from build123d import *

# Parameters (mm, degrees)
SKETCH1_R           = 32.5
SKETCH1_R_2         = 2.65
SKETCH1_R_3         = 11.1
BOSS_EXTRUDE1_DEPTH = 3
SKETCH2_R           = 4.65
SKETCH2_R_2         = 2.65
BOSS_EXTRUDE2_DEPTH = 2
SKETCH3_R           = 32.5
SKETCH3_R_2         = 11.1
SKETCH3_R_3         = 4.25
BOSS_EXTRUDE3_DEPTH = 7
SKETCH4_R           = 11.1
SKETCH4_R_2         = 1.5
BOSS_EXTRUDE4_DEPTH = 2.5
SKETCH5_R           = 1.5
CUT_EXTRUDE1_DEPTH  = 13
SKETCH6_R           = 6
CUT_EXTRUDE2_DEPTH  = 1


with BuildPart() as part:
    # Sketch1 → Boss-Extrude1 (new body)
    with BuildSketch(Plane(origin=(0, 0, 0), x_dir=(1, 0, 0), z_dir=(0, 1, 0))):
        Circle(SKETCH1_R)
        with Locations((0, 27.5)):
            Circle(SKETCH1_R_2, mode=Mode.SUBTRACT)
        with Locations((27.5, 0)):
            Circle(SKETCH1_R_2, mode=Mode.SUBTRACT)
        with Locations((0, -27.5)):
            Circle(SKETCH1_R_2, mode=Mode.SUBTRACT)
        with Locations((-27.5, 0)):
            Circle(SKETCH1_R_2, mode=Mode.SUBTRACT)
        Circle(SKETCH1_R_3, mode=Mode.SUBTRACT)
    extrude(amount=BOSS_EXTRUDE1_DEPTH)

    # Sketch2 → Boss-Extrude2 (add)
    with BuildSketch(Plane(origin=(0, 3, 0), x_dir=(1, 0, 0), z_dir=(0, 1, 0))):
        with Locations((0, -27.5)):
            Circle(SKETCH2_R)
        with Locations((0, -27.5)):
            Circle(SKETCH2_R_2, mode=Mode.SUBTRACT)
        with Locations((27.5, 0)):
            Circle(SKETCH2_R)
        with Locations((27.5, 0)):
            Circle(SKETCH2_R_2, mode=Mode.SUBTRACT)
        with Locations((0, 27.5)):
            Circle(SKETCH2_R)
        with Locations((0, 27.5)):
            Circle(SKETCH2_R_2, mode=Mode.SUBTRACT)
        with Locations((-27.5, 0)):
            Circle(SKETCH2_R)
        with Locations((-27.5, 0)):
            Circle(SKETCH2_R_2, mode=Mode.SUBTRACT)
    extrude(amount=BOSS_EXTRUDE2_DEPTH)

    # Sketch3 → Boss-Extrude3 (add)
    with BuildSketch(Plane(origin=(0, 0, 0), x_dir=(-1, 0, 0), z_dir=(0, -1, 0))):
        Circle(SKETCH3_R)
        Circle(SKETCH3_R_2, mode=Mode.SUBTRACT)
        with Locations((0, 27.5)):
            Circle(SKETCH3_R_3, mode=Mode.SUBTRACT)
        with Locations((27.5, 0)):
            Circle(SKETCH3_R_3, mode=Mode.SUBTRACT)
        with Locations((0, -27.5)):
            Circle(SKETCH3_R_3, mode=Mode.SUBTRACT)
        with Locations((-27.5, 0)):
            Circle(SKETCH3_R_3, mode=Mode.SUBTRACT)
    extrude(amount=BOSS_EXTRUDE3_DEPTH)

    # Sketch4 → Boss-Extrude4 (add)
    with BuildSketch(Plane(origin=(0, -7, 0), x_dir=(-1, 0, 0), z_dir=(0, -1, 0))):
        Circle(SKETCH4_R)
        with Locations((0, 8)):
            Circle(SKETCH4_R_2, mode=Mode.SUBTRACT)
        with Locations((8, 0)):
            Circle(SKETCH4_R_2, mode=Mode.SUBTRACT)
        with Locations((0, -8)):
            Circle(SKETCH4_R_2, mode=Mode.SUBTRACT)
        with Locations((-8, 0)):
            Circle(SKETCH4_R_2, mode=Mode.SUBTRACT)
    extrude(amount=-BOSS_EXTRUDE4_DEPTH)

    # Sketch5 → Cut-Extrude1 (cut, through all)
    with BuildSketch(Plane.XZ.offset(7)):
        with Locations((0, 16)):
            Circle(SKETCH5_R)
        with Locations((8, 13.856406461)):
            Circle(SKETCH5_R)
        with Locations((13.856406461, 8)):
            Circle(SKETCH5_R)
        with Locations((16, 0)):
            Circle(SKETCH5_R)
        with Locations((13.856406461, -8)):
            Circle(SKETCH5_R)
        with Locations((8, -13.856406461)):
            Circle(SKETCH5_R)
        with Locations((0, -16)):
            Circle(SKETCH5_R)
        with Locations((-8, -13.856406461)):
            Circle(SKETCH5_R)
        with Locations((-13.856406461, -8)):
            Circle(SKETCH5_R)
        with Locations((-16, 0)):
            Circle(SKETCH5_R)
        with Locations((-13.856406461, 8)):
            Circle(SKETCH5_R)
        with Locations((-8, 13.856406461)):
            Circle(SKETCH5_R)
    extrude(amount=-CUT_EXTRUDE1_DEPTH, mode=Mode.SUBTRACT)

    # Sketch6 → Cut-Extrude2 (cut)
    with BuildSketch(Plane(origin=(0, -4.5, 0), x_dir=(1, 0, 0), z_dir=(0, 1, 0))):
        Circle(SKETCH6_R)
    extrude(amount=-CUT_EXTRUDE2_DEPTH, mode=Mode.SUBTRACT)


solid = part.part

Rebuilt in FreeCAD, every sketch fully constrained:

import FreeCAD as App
import Part
import Sketcher
from FreeCAD import Vector

doc = App.newDocument("Part")
params = doc.addObject("Spreadsheet::Sheet", "Params")
for row, (alias, value) in enumerate([
    ("sketch1_diameter", "65 mm"),
    ("sketch1_diameter2", "5.3 mm"),
    ("sketch1_diameter3", "22.2 mm"),
    ("pad1_length", "3 mm"),
    ("sketch2_diameter", "9.3 mm"),
    ("sketch2_diameter2", "5.3 mm"),
    ("pad2_length", "2 mm"),
    ("sketch3_diameter", "65 mm"),
    ("sketch3_diameter2", "8.5 mm"),
    ("sketch3_diameter3", "22.2 mm"),
    ("pad3_length", "7 mm"),
    ("sketch4_diameter", "3 mm"),
    ("sketch4_diameter2", "22.2 mm"),
    ("pad4_length", "2.5 mm"),
    ("sketch5_diameter", "3 mm"),
    ("sketch6_diameter", "12 mm"),
    ("pocket2_length", "1 mm"),
], start=1):
    params.set(f"A{row}", alias)
    params.set(f"B{row}", "=" + value)
    params.setAlias(f"B{row}", alias)

body = doc.addObject("PartDesign::Body", "Body")

# Sketch on XZ plane
sketch1 = body.newObject("Sketcher::SketchObject", "Sketch")
sketch1.AttachmentSupport = (doc.getObject("XZ_Plane"), [""])
sketch1.MapMode = "FlatFace"
sketch1.addGeometry([
    Part.Circle(Vector(0, 0, 0), Vector(0, 0, 1), 32.5),  # 0
    Part.Circle(Vector(0, 27.5, 0), Vector(0, 0, 1), 2.6),  # 1
    Part.Circle(Vector(-27.5, 0, 0), Vector(0, 0, 1), 2.6),  # 2
    Part.Circle(Vector(0, 0, 0), Vector(0, 0, 1), 11.1),  # 3
    Part.Circle(Vector(27.5, 0, 0), Vector(0, 0, 1), 2.6),  # 4
    Part.Circle(Vector(0, -27.5, 0), Vector(0, 0, 1), 2.6),  # 5
], False)
sketch1.addConstraint([
    Sketcher.Constraint("Coincident", 0, 3, -1, 1),
    Sketcher.Constraint("Coincident", 3, 3, -1, 1),
    Sketcher.Constraint("Equal", 1, 2),
    Sketcher.Constraint("Equal", 2, 4),
    Sketcher.Constraint("Equal", 4, 5),
    Sketcher.Constraint("Symmetric", 2, 3, 4, 3, -1, 1),
    Sketcher.Constraint("Symmetric", 1, 3, 5, 3, -1, 1),
    Sketcher.Constraint("PointOnObject", 1, 3, -2),
    Sketcher.Constraint("PointOnObject", 2, 3, -1),
    Sketcher.Constraint("Diameter", 0, 65.0),
    Sketcher.Constraint("Diameter", 1, 5.3),
    Sketcher.Constraint("Diameter", 3, 22.2),
    Sketcher.Constraint("DistanceX", 2, 3, 4, 3, 55.0),
    Sketcher.Constraint("DistanceY", 5, 3, 1, 3, 55.0),
])
sketch1.setExpression("Constraints[9]", "Params.sketch1_diameter")
sketch1.setExpression("Constraints[10]", "Params.sketch1_diameter2")
sketch1.setExpression("Constraints[11]", "Params.sketch1_diameter3")
pad1 = body.newObject("PartDesign::Pad", "Pad")
pad1.Profile = sketch1
pad1.setExpression("Length", "Params.pad1_length")
pad1.Reversed = True

# Sketch on XZ plane
sketch2 = body.newObject("Sketcher::SketchObject", "Sketch001")
sketch2.AttachmentSupport = (doc.getObject("XZ_Plane"), [""])
sketch2.MapMode = "FlatFace"
sketch2.AttachmentOffset = App.Placement(Vector(0, 0, -3), App.Rotation())
sketch2.addGeometry([
    Part.Circle(Vector(0, 27.5, 0), Vector(0, 0, 1), 4.7),  # 0
    Part.Circle(Vector(0, 27.5, 0), Vector(0, 0, 1), 2.6),  # 1
    Part.Circle(Vector(27.5, 0, 0), Vector(0, 0, 1), 4.7),  # 2
    Part.Circle(Vector(27.5, 0, 0), Vector(0, 0, 1), 2.6),  # 3
    Part.Circle(Vector(0, -27.5, 0), Vector(0, 0, 1), 4.7),  # 4
    Part.Circle(Vector(0, -27.5, 0), Vector(0, 0, 1), 2.6),  # 5
    Part.Circle(Vector(-27.5, 0, 0), Vector(0, 0, 1), 4.7),  # 6
    Part.Circle(Vector(-27.5, 0, 0), Vector(0, 0, 1), 2.6),  # 7
], False)
sketch2.addConstraint([
    Sketcher.Constraint("Coincident", 1, 3, 0, 3),
    Sketcher.Constraint("Coincident", 3, 3, 2, 3),
    Sketcher.Constraint("Coincident", 5, 3, 4, 3),
    Sketcher.Constraint("Coincident", 7, 3, 6, 3),
    Sketcher.Constraint("Equal", 0, 2),
    Sketcher.Constraint("Equal", 1, 3),
    Sketcher.Constraint("Equal", 2, 4),
    Sketcher.Constraint("Equal", 3, 5),
    Sketcher.Constraint("Equal", 4, 6),
    Sketcher.Constraint("Equal", 5, 7),
    Sketcher.Constraint("Symmetric", 0, 3, 4, 3, -1, 1),
    Sketcher.Constraint("Symmetric", 2, 3, 6, 3, -1, 1),
    Sketcher.Constraint("PointOnObject", 0, 3, -2),
    Sketcher.Constraint("PointOnObject", 2, 3, -1),
    Sketcher.Constraint("Diameter", 0, 9.3),
    Sketcher.Constraint("Diameter", 1, 5.3),
    Sketcher.Constraint("DistanceY", 4, 3, 0, 3, 55.0),
    Sketcher.Constraint("DistanceX", 6, 3, 2, 3, 55.0),
])
sketch2.setExpression("Constraints[14]", "Params.sketch2_diameter")
sketch2.setExpression("Constraints[15]", "Params.sketch2_diameter2")
pad2 = body.newObject("PartDesign::Pad", "Pad001")
pad2.Profile = sketch2
pad2.setExpression("Length", "Params.pad2_length")
pad2.Reversed = True

# Sketch on XZ plane
sketch3 = body.newObject("Sketcher::SketchObject", "Sketch002")
sketch3.AttachmentSupport = (doc.getObject("XZ_Plane"), [""])
sketch3.MapMode = "FlatFace"
sketch3.addGeometry([
    Part.Circle(Vector(0, 0, 0), Vector(0, 0, 1), 32.5),  # 0
    Part.Circle(Vector(0, 27.5, 0), Vector(0, 0, 1), 4.2),  # 1
    Part.Circle(Vector(27.5, 0, 0), Vector(0, 0, 1), 4.2),  # 2
    Part.Circle(Vector(0, 0, 0), Vector(0, 0, 1), 11.1),  # 3
    Part.Circle(Vector(-27.5, 0, 0), Vector(0, 0, 1), 4.2),  # 4
    Part.Circle(Vector(0, -27.5, 0), Vector(0, 0, 1), 4.2),  # 5
], False)
sketch3.addConstraint([
    Sketcher.Constraint("Coincident", 0, 3, -1, 1),
    Sketcher.Constraint("Coincident", 3, 3, -1, 1),
    Sketcher.Constraint("Equal", 1, 2),
    Sketcher.Constraint("Equal", 2, 4),
    Sketcher.Constraint("Equal", 4, 5),
    Sketcher.Constraint("Symmetric", 2, 3, 4, 3, -1, 1),
    Sketcher.Constraint("Symmetric", 1, 3, 5, 3, -1, 1),
    Sketcher.Constraint("PointOnObject", 1, 3, -2),
    Sketcher.Constraint("PointOnObject", 2, 3, -1),
    Sketcher.Constraint("Diameter", 0, 65.0),
    Sketcher.Constraint("Diameter", 1, 8.5),
    Sketcher.Constraint("Diameter", 3, 22.2),
    Sketcher.Constraint("DistanceX", 4, 3, 2, 3, 55.0),
    Sketcher.Constraint("DistanceY", 5, 3, 1, 3, 55.0),
])
sketch3.setExpression("Constraints[9]", "Params.sketch3_diameter")
sketch3.setExpression("Constraints[10]", "Params.sketch3_diameter2")
sketch3.setExpression("Constraints[11]", "Params.sketch3_diameter3")
pad3 = body.newObject("PartDesign::Pad", "Pad002")
pad3.Profile = sketch3
pad3.setExpression("Length", "Params.pad3_length")

# Sketch on XZ plane
sketch4 = body.newObject("Sketcher::SketchObject", "Sketch003")
sketch4.AttachmentSupport = (doc.getObject("XZ_Plane"), [""])
sketch4.MapMode = "FlatFace"
sketch4.AttachmentOffset = App.Placement(Vector(0, 0, 7), App.Rotation())
sketch4.addGeometry([
    Part.Circle(Vector(0, 0, 0), Vector(0, 0, 1), 11.1),  # 0
    Part.Circle(Vector(0, 8, 0), Vector(0, 0, 1), 1.5),  # 1
    Part.Circle(Vector(8, 0, 0), Vector(0, 0, 1), 1.5),  # 2
    Part.Circle(Vector(-8, 0, 0), Vector(0, 0, 1), 1.5),  # 3
    Part.Circle(Vector(0, -8, 0), Vector(0, 0, 1), 1.5),  # 4
], False)
sketch4.addConstraint([
    Sketcher.Constraint("Coincident", 0, 3, -1, 1),
    Sketcher.Constraint("Equal", 1, 2),
    Sketcher.Constraint("Equal", 2, 3),
    Sketcher.Constraint("Equal", 3, 4),
    Sketcher.Constraint("Symmetric", 2, 3, 3, 3, -1, 1),
    Sketcher.Constraint("Symmetric", 1, 3, 4, 3, -1, 1),
    Sketcher.Constraint("PointOnObject", 1, 3, -2),
    Sketcher.Constraint("PointOnObject", 2, 3, -1),
    Sketcher.Constraint("Diameter", 1, 3.0),
    Sketcher.Constraint("Diameter", 0, 22.2),
    Sketcher.Constraint("DistanceY", -1, 1, 1, 3, 8.0),
    Sketcher.Constraint("DistanceX", -1, 1, 2, 3, 8.0),
])
sketch4.setExpression("Constraints[8]", "Params.sketch4_diameter")
sketch4.setExpression("Constraints[9]", "Params.sketch4_diameter2")
pad4 = body.newObject("PartDesign::Pad", "Pad003")
pad4.Profile = sketch4
pad4.setExpression("Length", "Params.pad4_length")
pad4.Reversed = True

# Sketch on XZ plane
sketch5 = body.newObject("Sketcher::SketchObject", "Sketch004")
sketch5.AttachmentSupport = (doc.getObject("XZ_Plane"), [""])
sketch5.MapMode = "FlatFace"
sketch5.AttachmentOffset = App.Placement(Vector(0, 0, 7), App.Rotation())
sketch5.addGeometry([
    Part.Circle(Vector(0, 16, 0), Vector(0, 0, 1), 1.5),  # 0
    Part.Circle(Vector(8, 13.9, 0), Vector(0, 0, 1), 1.5),  # 1
    Part.Circle(Vector(13.9, 8, 0), Vector(0, 0, 1), 1.5),  # 2
    Part.Circle(Vector(16, 0, 0), Vector(0, 0, 1), 1.5),  # 3
    Part.Circle(Vector(13.9, -8, 0), Vector(0, 0, 1), 1.5),  # 4
    Part.Circle(Vector(8, -13.9, 0), Vector(0, 0, 1), 1.5),  # 5
    Part.Circle(Vector(0, -16, 0), Vector(0, 0, 1), 1.5),  # 6
    Part.Circle(Vector(-8, -13.9, 0), Vector(0, 0, 1), 1.5),  # 7
    Part.Circle(Vector(-13.9, -8, 0), Vector(0, 0, 1), 1.5),  # 8
    Part.Circle(Vector(-16, 0, 0), Vector(0, 0, 1), 1.5),  # 9
    Part.Circle(Vector(-13.9, 8, 0), Vector(0, 0, 1), 1.5),  # 10
    Part.Circle(Vector(-8, 13.9, 0), Vector(0, 0, 1), 1.5),  # 11
], False)
sketch5.addConstraint([
    Sketcher.Constraint("Equal", 0, 1),
    Sketcher.Constraint("Equal", 1, 2),
    Sketcher.Constraint("Equal", 2, 3),
    Sketcher.Constraint("Equal", 3, 4),
    Sketcher.Constraint("Equal", 4, 5),
    Sketcher.Constraint("Equal", 5, 6),
    Sketcher.Constraint("Equal", 6, 7),
    Sketcher.Constraint("Equal", 7, 8),
    Sketcher.Constraint("Equal", 8, 9),
    Sketcher.Constraint("Equal", 9, 10),
    Sketcher.Constraint("Equal", 10, 11),
    Sketcher.Constraint("Symmetric", 0, 3, 6, 3, -1, 1),
    Sketcher.Constraint("Symmetric", 1, 3, 7, 3, -1, 1),
    Sketcher.Constraint("Symmetric", 2, 3, 8, 3, -1, 1),
    Sketcher.Constraint("Symmetric", 3, 3, 9, 3, -1, 1),
    Sketcher.Constraint("Symmetric", 4, 3, 10, 3, -1, 1),
    Sketcher.Constraint("Symmetric", 5, 3, 11, 3, -1, 1),
    Sketcher.Constraint("Symmetric", 5, 3, 7, 3, -2),
    Sketcher.Constraint("Symmetric", 4, 3, 8, 3, -2),
    Sketcher.Constraint("PointOnObject", 0, 3, -2),
    Sketcher.Constraint("PointOnObject", 3, 3, -1),
    Sketcher.Constraint("Diameter", 0, 3.0),
    Sketcher.Constraint("DistanceY", -1, 1, 0, 3, 16.0),
    Sketcher.Constraint("DistanceX", -1, 1, 1, 3, 8.0),
    Sketcher.Constraint("DistanceY", -1, 1, 2, 3, 8.0),
    Sketcher.Constraint("DistanceX", -1, 1, 3, 3, 16.0),
    Sketcher.Constraint("DistanceY", -1, 1, 1, 3, 13.856406),
    Sketcher.Constraint("DistanceX", -1, 1, 2, 3, 13.856406),
])
sketch5.setExpression("Constraints[21]", "Params.sketch5_diameter")
pocket1 = body.newObject("PartDesign::Pocket", "Pocket")
pocket1.Profile = sketch5
pocket1.Type = "ThroughAll"

# Sketch on XZ plane
sketch6 = body.newObject("Sketcher::SketchObject", "Sketch005")
sketch6.AttachmentSupport = (doc.getObject("XZ_Plane"), [""])
sketch6.MapMode = "FlatFace"
sketch6.AttachmentOffset = App.Placement(Vector(0, 0, 4.5), App.Rotation())
sketch6.addGeometry(Part.Circle(Vector(0, 0, 0), Vector(0, 0, 1), 6), False)
sketch6.addConstraint([
    Sketcher.Constraint("Coincident", 0, 3, -1, 1),
    Sketcher.Constraint("Diameter", 0, 12.0),
])
sketch6.setExpression("Constraints[1]", "Params.sketch6_diameter")
pocket2 = body.newObject("PartDesign::Pocket", "Pocket001")
pocket2.Profile = sketch6
pocket2.setExpression("Length", "Params.pocket2_length")
pocket2.Reversed = True

doc.recompute()
